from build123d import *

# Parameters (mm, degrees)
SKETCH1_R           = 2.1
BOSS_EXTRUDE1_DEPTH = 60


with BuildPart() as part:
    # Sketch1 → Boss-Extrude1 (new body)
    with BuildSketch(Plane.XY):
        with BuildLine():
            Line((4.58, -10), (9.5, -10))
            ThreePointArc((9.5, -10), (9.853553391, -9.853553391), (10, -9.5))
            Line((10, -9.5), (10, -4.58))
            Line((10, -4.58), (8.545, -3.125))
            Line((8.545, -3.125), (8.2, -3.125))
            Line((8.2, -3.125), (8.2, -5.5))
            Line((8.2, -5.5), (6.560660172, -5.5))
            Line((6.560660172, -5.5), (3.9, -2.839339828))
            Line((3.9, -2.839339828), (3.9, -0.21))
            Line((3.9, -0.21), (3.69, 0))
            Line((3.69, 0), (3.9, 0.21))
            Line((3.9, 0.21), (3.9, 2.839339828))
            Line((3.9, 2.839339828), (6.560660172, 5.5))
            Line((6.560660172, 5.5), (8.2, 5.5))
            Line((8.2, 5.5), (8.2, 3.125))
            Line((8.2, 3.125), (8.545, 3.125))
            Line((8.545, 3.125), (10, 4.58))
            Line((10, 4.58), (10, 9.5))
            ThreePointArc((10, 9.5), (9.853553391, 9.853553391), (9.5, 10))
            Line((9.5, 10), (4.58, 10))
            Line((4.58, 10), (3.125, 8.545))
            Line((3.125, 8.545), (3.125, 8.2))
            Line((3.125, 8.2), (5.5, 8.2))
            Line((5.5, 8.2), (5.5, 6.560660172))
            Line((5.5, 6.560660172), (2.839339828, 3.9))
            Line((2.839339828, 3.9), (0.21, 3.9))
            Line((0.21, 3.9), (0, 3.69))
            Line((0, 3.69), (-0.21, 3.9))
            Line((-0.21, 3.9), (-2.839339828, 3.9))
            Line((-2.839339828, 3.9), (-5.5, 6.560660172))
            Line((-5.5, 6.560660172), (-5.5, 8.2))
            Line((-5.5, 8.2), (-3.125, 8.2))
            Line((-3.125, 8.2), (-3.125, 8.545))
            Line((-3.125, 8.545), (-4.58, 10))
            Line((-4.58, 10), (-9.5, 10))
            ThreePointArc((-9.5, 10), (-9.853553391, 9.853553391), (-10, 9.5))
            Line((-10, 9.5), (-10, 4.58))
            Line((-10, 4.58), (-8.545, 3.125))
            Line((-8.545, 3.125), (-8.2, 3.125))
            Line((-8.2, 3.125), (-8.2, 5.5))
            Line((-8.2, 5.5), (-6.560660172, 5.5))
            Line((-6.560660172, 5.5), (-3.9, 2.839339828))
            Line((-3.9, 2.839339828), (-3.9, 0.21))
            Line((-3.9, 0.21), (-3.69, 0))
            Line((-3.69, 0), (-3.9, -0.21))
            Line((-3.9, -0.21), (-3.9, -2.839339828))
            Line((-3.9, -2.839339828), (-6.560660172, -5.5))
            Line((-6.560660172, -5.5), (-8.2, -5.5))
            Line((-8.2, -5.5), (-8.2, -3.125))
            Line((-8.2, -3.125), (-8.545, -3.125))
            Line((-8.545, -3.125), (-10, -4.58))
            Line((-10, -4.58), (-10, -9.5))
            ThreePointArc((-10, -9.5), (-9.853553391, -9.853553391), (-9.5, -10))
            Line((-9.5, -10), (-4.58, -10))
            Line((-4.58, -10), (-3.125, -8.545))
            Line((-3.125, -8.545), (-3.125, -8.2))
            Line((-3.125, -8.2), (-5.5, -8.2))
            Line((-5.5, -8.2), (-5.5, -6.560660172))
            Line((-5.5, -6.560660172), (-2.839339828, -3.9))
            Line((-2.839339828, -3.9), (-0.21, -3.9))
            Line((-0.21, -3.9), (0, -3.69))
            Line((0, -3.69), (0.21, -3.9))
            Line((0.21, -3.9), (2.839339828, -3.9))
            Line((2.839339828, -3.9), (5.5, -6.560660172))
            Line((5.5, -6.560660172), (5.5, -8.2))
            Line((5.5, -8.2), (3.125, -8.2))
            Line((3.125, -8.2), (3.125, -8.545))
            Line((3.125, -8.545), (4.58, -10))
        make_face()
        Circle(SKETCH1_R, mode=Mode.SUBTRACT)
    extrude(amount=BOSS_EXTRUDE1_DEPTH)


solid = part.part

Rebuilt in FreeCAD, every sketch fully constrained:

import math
import FreeCAD as App
import Part
import Sketcher

V = App.Vector
Q = App.Units.Quantity

doc = App.newDocument("Part")
body = doc.addObject("PartDesign::Body", "Body")

sketch1 = doc.addObject("Sketcher::SketchObject", "Sketch")
body.addObject(sketch1)
sketch1.AttachmentSupport = (doc.XY_Plane, [""])
sketch1.MapMode = "FlatFace"
sketch1.addGeometry([
    Part.LineSegment(V(4.58, -10, 0), V(9.5, -10, 0)),
    Part.ArcOfCircle(Part.Circle(V(9.5, -9.5, 0), V(0, 0, 1), 0.5), math.radians(-90), math.radians(0)),
    Part.LineSegment(V(10, -9.5, 0), V(10, -4.58, 0)),
    Part.LineSegment(V(10, -4.58, 0), V(8.54, -3.12, 0)),
    Part.LineSegment(V(8.54, -3.12, 0), V(8.2, -3.12, 0)),
    Part.LineSegment(V(8.2, -3.12, 0), V(8.2, -5.5, 0)),
    Part.LineSegment(V(8.2, -5.5, 0), V(6.56, -5.5, 0)),
    Part.LineSegment(V(6.56, -5.5, 0), V(3.9, -2.84, 0)),
    Part.LineSegment(V(3.9, -2.84, 0), V(3.9, -0.21, 0)),
    Part.LineSegment(V(3.9, -0.21, 0), V(3.69, 0, 0)),
    Part.LineSegment(V(3.69, 0, 0), V(3.9, 0.21, 0)),
    Part.LineSegment(V(3.9, 0.21, 0), V(3.9, 2.84, 0)),
    Part.LineSegment(V(3.9, 2.84, 0), V(6.56, 5.5, 0)),
    Part.LineSegment(V(6.56, 5.5, 0), V(8.2, 5.5, 0)),
    Part.LineSegment(V(8.2, 5.5, 0), V(8.2, 3.12, 0)),
    Part.LineSegment(V(8.2, 3.12, 0), V(8.54, 3.12, 0)),
    Part.LineSegment(V(8.54, 3.12, 0), V(10, 4.58, 0)),
    Part.LineSegment(V(10, 4.58, 0), V(10, 9.5, 0)),
    Part.ArcOfCircle(Part.Circle(V(9.5, 9.5, 0), V(0, 0, 1), 0.5), math.radians(0), math.radians(90)),
    Part.LineSegment(V(9.5, 10, 0), V(4.58, 10, 0)),
    Part.LineSegment(V(4.58, 10, 0), V(3.12, 8.54, 0)),
    Part.LineSegment(V(3.12, 8.54, 0), V(3.12, 8.2, 0)),
    Part.LineSegment(V(3.12, 8.2, 0), V(5.5, 8.2, 0)),
    Part.LineSegment(V(5.5, 8.2, 0), V(5.5, 6.56, 0)),
    Part.LineSegment(V(5.5, 6.56, 0), V(2.84, 3.9, 0)),
    Part.LineSegment(V(2.84, 3.9, 0), V(0.21, 3.9, 0)),
    Part.LineSegment(V(0.21, 3.9, 0), V(0, 3.69, 0)),
    Part.LineSegment(V(0, 3.69, 0), V(-0.21, 3.9, 0)),
    Part.LineSegment(V(-0.21, 3.9, 0), V(-2.84, 3.9, 0)),
    Part.LineSegment(V(-2.84, 3.9, 0), V(-5.5, 6.56, 0)),
    Part.LineSegment(V(-5.5, 6.56, 0), V(-5.5, 8.2, 0)),
    Part.LineSegment(V(-5.5, 8.2, 0), V(-3.12, 8.2, 0)),
    Part.LineSegment(V(-3.12, 8.2, 0), V(-3.12, 8.54, 0)),
    Part.LineSegment(V(-3.12, 8.54, 0), V(-4.58, 10, 0)),
    Part.LineSegment(V(-4.58, 10, 0), V(-9.5, 10, 0)),
    Part.ArcOfCircle(Part.Circle(V(-9.5, 9.5, 0), V(0, 0, 1), 0.5), math.radians(90), math.radians(180)),
    Part.LineSegment(V(-10, 9.5, 0), V(-10, 4.58, 0)),
    Part.LineSegment(V(-10, 4.58, 0), V(-8.54, 3.12, 0)),
    Part.LineSegment(V(-8.54, 3.12, 0), V(-8.2, 3.12, 0)),
    Part.LineSegment(V(-8.2, 3.12, 0), V(-8.2, 5.5, 0)),
    Part.LineSegment(V(-8.2, 5.5, 0), V(-6.56, 5.5, 0)),
    Part.LineSegment(V(-6.56, 5.5, 0), V(-3.9, 2.84, 0)),
    Part.LineSegment(V(-3.9, 2.84, 0), V(-3.9, 0.21, 0)),
    Part.LineSegment(V(-3.9, 0.21, 0), V(-3.69, 0, 0)),
    Part.LineSegment(V(-3.69, 0, 0), V(-3.9, -0.21, 0)),
    Part.LineSegment(V(-3.9, -0.21, 0), V(-3.9, -2.84, 0)),
    Part.LineSegment(V(-3.9, -2.84, 0), V(-6.56, -5.5, 0)),
    Part.LineSegment(V(-6.56, -5.5, 0), V(-8.2, -5.5, 0)),
    Part.LineSegment(V(-8.2, -5.5, 0), V(-8.2, -3.12, 0)),
    Part.LineSegment(V(-8.2, -3.12, 0), V(-8.54, -3.12, 0)),
    Part.LineSegment(V(-8.54, -3.12, 0), V(-10, -4.58, 0)),
    Part.LineSegment(V(-10, -4.58, 0), V(-10, -9.5, 0)),
    Part.ArcOfCircle(Part.Circle(V(-9.5, -9.5, 0), V(0, 0, 1), 0.5), math.radians(180), math.radians(270)),
    Part.LineSegment(V(-9.5, -10, 0), V(-4.58, -10, 0)),
    Part.LineSegment(V(-4.58, -10, 0), V(-3.12, -8.54, 0)),
    Part.LineSegment(V(-3.12, -8.54, 0), V(-3.12, -8.2, 0)),
    Part.LineSegment(V(-3.12, -8.2, 0), V(-5.5, -8.2, 0)),
    Part.LineSegment(V(-5.5, -8.2, 0), V(-5.5, -6.56, 0)),
    Part.LineSegment(V(-5.5, -6.56, 0), V(-2.84, -3.9, 0)),
    Part.LineSegment(V(-2.84, -3.9, 0), V(-0.21, -3.9, 0)),
    Part.LineSegment(V(-0.21, -3.9, 0), V(0, -3.69, 0)),
    Part.LineSegment(V(0, -3.69, 0), V(0.21, -3.9, 0)),
    Part.LineSegment(V(0.21, -3.9, 0), V(2.84, -3.9, 0)),
    Part.LineSegment(V(2.84, -3.9, 0), V(5.5, -6.56, 0)),
    Part.LineSegment(V(5.5, -6.56, 0), V(5.5, -8.2, 0)),
    Part.LineSegment(V(5.5, -8.2, 0), V(3.12, -8.2, 0)),
    Part.LineSegment(V(3.12, -8.2, 0), V(3.12, -8.54, 0)),
    Part.LineSegment(V(3.12, -8.54, 0), V(4.58, -10, 0)),
    Part.Circle(V(0, 0, 0), V(0, 0, 1), 2.1),
], False)
sketch1.addConstraint([
    Sketcher.Constraint("Tangent", 0, 2, 1, 1),
    Sketcher.Constraint("Tangent", 1, 2, 2, 1),
    Sketcher.Constraint("Coincident", 2, 2, 3, 1),
    Sketcher.Constraint("Coincident", 3, 2, 4, 1),
    Sketcher.Constraint("Coincident", 4, 2, 5, 1),
    Sketcher.Constraint("Coincident", 5, 2, 6, 1),
    Sketcher.Constraint("Coincident", 6, 2, 7, 1),
    Sketcher.Constraint("Coincident", 7, 2, 8, 1),
    Sketcher.Constraint("Coincident", 8, 2, 9, 1),
    Sketcher.Constraint("Coincident", 9, 2, 10, 1),
    Sketcher.Constraint("Coincident", 10, 2, 11, 1),
    Sketcher.Constraint("Coincident", 11, 2, 12, 1),
    Sketcher.Constraint("Coincident", 12, 2, 13, 1),
    Sketcher.Constraint("Coincident", 13, 2, 14, 1),
    Sketcher.Constraint("Coincident", 14, 2, 15, 1),
    Sketcher.Constraint("Coincident", 15, 2, 16, 1),
    Sketcher.Constraint("Coincident", 16, 2, 17, 1),
    Sketcher.Constraint("Tangent", 17, 2, 18, 1),
    Sketcher.Constraint("Tangent", 18, 2, 19, 1),
    Sketcher.Constraint("Coincident", 19, 2, 20, 1),
    Sketcher.Constraint("Coincident", 20, 2, 21, 1),
    Sketcher.Constraint("Coincident", 21, 2, 22, 1),
    Sketcher.Constraint("Coincident", 22, 2, 23, 1),
    Sketcher.Constraint("Coincident", 23, 2, 24, 1),
    Sketcher.Constraint("Coincident", 24, 2, 25, 1),
    Sketcher.Constraint("Coincident", 25, 2, 26, 1),
    Sketcher.Constraint("Coincident", 26, 2, 27, 1),
    Sketcher.Constraint("Coincident", 27, 2, 28, 1),
    Sketcher.Constraint("Coincident", 28, 2, 29, 1),
    Sketcher.Constraint("Coincident", 29, 2, 30, 1),
    Sketcher.Constraint("Coincident", 30, 2, 31, 1),
    Sketcher.Constraint("Coincident", 31, 2, 32, 1),
    Sketcher.Constraint("Coincident", 32, 2, 33, 1),
    Sketcher.Constraint("Coincident", 33, 2, 34, 1),
    Sketcher.Constraint("Tangent", 34, 2, 35, 1),
    Sketcher.Constraint("Tangent", 35, 2, 36, 1),
    Sketcher.Constraint("Coincident", 36, 2, 37, 1),
    Sketcher.Constraint("Coincident", 37, 2, 38, 1),
    Sketcher.Constraint("Coincident", 38, 2, 39, 1),
    Sketcher.Constraint("Coincident", 39, 2, 40, 1),
    Sketcher.Constraint("Coincident", 40, 2, 41, 1),
    Sketcher.Constraint("Coincident", 41, 2, 42, 1),
    Sketcher.Constraint("Coincident", 42, 2, 43, 1),
    Sketcher.Constraint("Coincident", 43, 2, 44, 1),
    Sketcher.Constraint("Coincident", 44, 2, 45, 1),
    Sketcher.Constraint("Coincident", 45, 2, 46, 1),
    Sketcher.Constraint("Coincident", 46, 2, 47, 1),
    Sketcher.Constraint("Coincident", 47, 2, 48, 1),
    Sketcher.Constraint("Coincident", 48, 2, 49, 1),
    Sketcher.Constraint("Coincident", 49, 2, 50, 1),
    Sketcher.Constraint("Coincident", 50, 2, 51, 1),
    Sketcher.Constraint("Tangent", 51, 2, 52, 1),
    Sketcher.Constraint("Tangent", 52, 2, 53, 1),
    Sketcher.Constraint("Coincident", 53, 2, 54, 1),
    Sketcher.Constraint("Coincident", 54, 2, 55, 1),
    Sketcher.Constraint("Coincident", 55, 2, 56, 1),
    Sketcher.Constraint("Coincident", 56, 2, 57, 1),
    Sketcher.Constraint("Coincident", 57, 2, 58, 1),
    Sketcher.Constraint("Coincident", 58, 2, 59, 1),
    Sketcher.Constraint("Coincident", 59, 2, 60, 1),
    Sketcher.Constraint("Coincident", 60, 2, 61, 1),
    Sketcher.Constraint("Coincident", 61, 2, 62, 1),
    Sketcher.Constraint("Coincident", 62, 2, 63, 1),
    Sketcher.Constraint("Coincident", 63, 2, 64, 1),
    Sketcher.Constraint("Coincident", 64, 2, 65, 1),
    Sketcher.Constraint("Coincident", 65, 2, 66, 1),
    Sketcher.Constraint("Coincident", 66, 2, 67, 1),
    Sketcher.Constraint("Coincident", 67, 2, 0, 1),
    Sketcher.Constraint("Horizontal", 0),
    Sketcher.Constraint("Vertical", 2),
    Sketcher.Constraint("Horizontal", 4),
    Sketcher.Constraint("Vertical", 5),
    Sketcher.Constraint("Horizontal", 6),
    Sketcher.Constraint("Vertical", 8),
    Sketcher.Constraint("Vertical", 11),
    Sketcher.Constraint("Horizontal", 13),
    Sketcher.Constraint("Vertical", 14),
    Sketcher.Constraint("Horizontal", 15),
    Sketcher.Constraint("Vertical", 17),
    Sketcher.Constraint("Horizontal", 19),
    Sketcher.Constraint("Vertical", 21),
    Sketcher.Constraint("Horizontal", 22),
    Sketcher.Constraint("Vertical", 23),
    Sketcher.Constraint("Horizontal", 25),
    Sketcher.Constraint("Horizontal", 28),
    Sketcher.Constraint("Vertical", 30),
    Sketcher.Constraint("Horizontal", 31),
    Sketcher.Constraint("Vertical", 32),
    Sketcher.Constraint("Horizontal", 34),
    Sketcher.Constraint("Vertical", 36),
    Sketcher.Constraint("Horizontal", 38),
    Sketcher.Constraint("Vertical", 39),
    Sketcher.Constraint("Horizontal", 40),
    Sketcher.Constraint("Vertical", 42),
    Sketcher.Constraint("Vertical", 45),
    Sketcher.Constraint("Horizontal", 47),
    Sketcher.Constraint("Vertical", 48),
    Sketcher.Constraint("Horizontal", 49),
    Sketcher.Constraint("Vertical", 51),
    Sketcher.Constraint("Horizontal", 53),
    Sketcher.Constraint("Vertical", 55),
    Sketcher.Constraint("Horizontal", 56),
    Sketcher.Constraint("Vertical", 57),
    Sketcher.Constraint("Horizontal", 59),
    Sketcher.Constraint("Horizontal", 62),
    Sketcher.Constraint("Vertical", 64),
    Sketcher.Constraint("Horizontal", 65),
    Sketcher.Constraint("Vertical", 66),
    Sketcher.Constraint("Coincident", 68, 3, -1, 1),
    Sketcher.Constraint("Equal", 1, 18),
    Sketcher.Constraint("Equal", 18, 35),
    Sketcher.Constraint("Equal", 35, 52),
    Sketcher.Constraint("Symmetric", 1, 3, 35, 3, -1, 1),
    Sketcher.Constraint("Symmetric", 18, 3, 52, 3, -1, 1),
    Sketcher.Constraint("Symmetric", 3, 2, 37, 2, -1, 1),
    Sketcher.Constraint("Symmetric", 5, 2, 39, 2, -1, 1),
    Sketcher.Constraint("Symmetric", 7, 2, 41, 2, -1, 1),
    Sketcher.Constraint("Symmetric", 9, 2, 43, 2, -1, 1),
    Sketcher.Constraint("Symmetric", 10, 2, 44, 2, -1, 1),
    Sketcher.Constraint("Symmetric", 12, 2, 46, 2, -1, 1),
    Sketcher.Constraint("Symmetric", 14, 2, 48, 2, -1, 1),
    Sketcher.Constraint("Symmetric", 20, 2, 54, 2, -1, 1),
    Sketcher.Constraint("Symmetric", 22, 2, 56, 2, -1, 1),
    Sketcher.Constraint("Symmetric", 24, 2, 58, 2, -1, 1),
    Sketcher.Constraint("Symmetric", 26, 2, 60, 2, -1, 1),
    Sketcher.Constraint("Symmetric", 27, 2, 61, 2, -1, 1),
    Sketcher.Constraint("Symmetric", 29, 2, 63, 2, -1, 1),
    Sketcher.Constraint("Symmetric", 31, 2, 65, 2, -1, 1),
    Sketcher.Constraint("Symmetric", 18, 3, 35, 3, -2),
    Sketcher.Constraint("Symmetric", 25, 2, 27, 2, -2),
    Sketcher.Constraint("Symmetric", 23, 2, 29, 2, -2),
    Sketcher.Constraint("Symmetric", 21, 2, 31, 2, -2),
    Sketcher.Constraint("Symmetric", 15, 2, 37, 2, -2),
    Sketcher.Constraint("Symmetric", 13, 2, 39, 2, -2),
    Sketcher.Constraint("Symmetric", 11, 2, 41, 2, -2),
    Sketcher.Constraint("PointOnObject", 9, 2, -1),
    Sketcher.Constraint("PointOnObject", 26, 2, -2),
    Sketcher.Constraint("Parallel", 3, 7),
    Sketcher.Constraint("Parallel", 7, 9),
    Sketcher.Constraint("Perpendicular", 9, 10),
    Sketcher.Constraint("Parallel", 10, 12),
    Sketcher.Constraint("Parallel", 12, 16),
    Sketcher.Constraint("Parallel", 16, 20),
    Sketcher.Constraint("Parallel", 20, 24),
    Sketcher.Constraint("Parallel", 24, 26),
    Sketcher.Constraint("Perpendicular", 26, 27),
    Sketcher.Constraint("Parallel", 27, 29),
    Sketcher.Constraint("Parallel", 29, 33),
    Sketcher.Constraint("Parallel", 33, 37),
    Sketcher.Constraint("Parallel", 37, 41),
    Sketcher.Constraint("Parallel", 41, 43),
    Sketcher.Constraint("Parallel", 44, 46),
    Sketcher.Constraint("Parallel", 46, 50),
    Sketcher.Constraint("Parallel", 50, 54),
    Sketcher.Constraint("Parallel", 54, 58),
    Sketcher.Constraint("Parallel", 58, 60),
    Sketcher.Constraint("Parallel", 61, 63),
    Sketcher.Constraint("Parallel", 63, 67),
    Sketcher.Constraint("Horizontal", 20, 2, 32, 2),
    Sketcher.Constraint("Horizontal", 2, 2, 50, 2),
    Sketcher.Constraint("Horizontal", 54, 2, 66, 2),
    Sketcher.Constraint("Equal", 53, 2),
    Sketcher.Constraint("Equal", 65, 5),
    Sketcher.Constraint("Equal", 62, 8),
    Sketcher.Constraint("Equal", 49, 21),
    Sketcher.Constraint("Equal", 47, 23),
    Sketcher.Constraint("Equal", 16, 20),
    Sketcher.Constraint("Equal", 12, 24),
    Sketcher.Constraint("Equal", 10, 26),
    Sketcher.Constraint("Diameter", 68, Q("4.2 mm")),
    Sketcher.Constraint("Radius", 1, Q("0.5 mm")),
    Sketcher.Constraint("DistanceY", 0, 2, -1, 1, Q("10 mm")),
    Sketcher.Constraint("DistanceX", 0, 1, 0, 2, Q("4.92 mm")),
    Sketcher.Constraint("DistanceX", -1, 1, 4, 2, Q("8.2 mm")),
    Sketcher.Constraint("DistanceY", 5, 2, -1, 1, Q("5.5 mm")),
    Sketcher.Constraint("DistanceX", -1, 1, 7, 2, Q("3.9 mm")),
    Sketcher.Constraint("DistanceX", 4, 2, 4, 1, Q("0.345 mm")),
    Sketcher.Constraint("DistanceY", 8, 2, -1, 1, Q("0.21 mm")),
    Sketcher.Constraint("DistanceX", 6, 2, 6, 1, Q("1.63934 mm")),
])
pad1 = doc.addObject("PartDesign::Pad", "Pad")
body.addObject(pad1)
pad1.Profile = sketch1
pad1.Length = 60

doc.recompute()
